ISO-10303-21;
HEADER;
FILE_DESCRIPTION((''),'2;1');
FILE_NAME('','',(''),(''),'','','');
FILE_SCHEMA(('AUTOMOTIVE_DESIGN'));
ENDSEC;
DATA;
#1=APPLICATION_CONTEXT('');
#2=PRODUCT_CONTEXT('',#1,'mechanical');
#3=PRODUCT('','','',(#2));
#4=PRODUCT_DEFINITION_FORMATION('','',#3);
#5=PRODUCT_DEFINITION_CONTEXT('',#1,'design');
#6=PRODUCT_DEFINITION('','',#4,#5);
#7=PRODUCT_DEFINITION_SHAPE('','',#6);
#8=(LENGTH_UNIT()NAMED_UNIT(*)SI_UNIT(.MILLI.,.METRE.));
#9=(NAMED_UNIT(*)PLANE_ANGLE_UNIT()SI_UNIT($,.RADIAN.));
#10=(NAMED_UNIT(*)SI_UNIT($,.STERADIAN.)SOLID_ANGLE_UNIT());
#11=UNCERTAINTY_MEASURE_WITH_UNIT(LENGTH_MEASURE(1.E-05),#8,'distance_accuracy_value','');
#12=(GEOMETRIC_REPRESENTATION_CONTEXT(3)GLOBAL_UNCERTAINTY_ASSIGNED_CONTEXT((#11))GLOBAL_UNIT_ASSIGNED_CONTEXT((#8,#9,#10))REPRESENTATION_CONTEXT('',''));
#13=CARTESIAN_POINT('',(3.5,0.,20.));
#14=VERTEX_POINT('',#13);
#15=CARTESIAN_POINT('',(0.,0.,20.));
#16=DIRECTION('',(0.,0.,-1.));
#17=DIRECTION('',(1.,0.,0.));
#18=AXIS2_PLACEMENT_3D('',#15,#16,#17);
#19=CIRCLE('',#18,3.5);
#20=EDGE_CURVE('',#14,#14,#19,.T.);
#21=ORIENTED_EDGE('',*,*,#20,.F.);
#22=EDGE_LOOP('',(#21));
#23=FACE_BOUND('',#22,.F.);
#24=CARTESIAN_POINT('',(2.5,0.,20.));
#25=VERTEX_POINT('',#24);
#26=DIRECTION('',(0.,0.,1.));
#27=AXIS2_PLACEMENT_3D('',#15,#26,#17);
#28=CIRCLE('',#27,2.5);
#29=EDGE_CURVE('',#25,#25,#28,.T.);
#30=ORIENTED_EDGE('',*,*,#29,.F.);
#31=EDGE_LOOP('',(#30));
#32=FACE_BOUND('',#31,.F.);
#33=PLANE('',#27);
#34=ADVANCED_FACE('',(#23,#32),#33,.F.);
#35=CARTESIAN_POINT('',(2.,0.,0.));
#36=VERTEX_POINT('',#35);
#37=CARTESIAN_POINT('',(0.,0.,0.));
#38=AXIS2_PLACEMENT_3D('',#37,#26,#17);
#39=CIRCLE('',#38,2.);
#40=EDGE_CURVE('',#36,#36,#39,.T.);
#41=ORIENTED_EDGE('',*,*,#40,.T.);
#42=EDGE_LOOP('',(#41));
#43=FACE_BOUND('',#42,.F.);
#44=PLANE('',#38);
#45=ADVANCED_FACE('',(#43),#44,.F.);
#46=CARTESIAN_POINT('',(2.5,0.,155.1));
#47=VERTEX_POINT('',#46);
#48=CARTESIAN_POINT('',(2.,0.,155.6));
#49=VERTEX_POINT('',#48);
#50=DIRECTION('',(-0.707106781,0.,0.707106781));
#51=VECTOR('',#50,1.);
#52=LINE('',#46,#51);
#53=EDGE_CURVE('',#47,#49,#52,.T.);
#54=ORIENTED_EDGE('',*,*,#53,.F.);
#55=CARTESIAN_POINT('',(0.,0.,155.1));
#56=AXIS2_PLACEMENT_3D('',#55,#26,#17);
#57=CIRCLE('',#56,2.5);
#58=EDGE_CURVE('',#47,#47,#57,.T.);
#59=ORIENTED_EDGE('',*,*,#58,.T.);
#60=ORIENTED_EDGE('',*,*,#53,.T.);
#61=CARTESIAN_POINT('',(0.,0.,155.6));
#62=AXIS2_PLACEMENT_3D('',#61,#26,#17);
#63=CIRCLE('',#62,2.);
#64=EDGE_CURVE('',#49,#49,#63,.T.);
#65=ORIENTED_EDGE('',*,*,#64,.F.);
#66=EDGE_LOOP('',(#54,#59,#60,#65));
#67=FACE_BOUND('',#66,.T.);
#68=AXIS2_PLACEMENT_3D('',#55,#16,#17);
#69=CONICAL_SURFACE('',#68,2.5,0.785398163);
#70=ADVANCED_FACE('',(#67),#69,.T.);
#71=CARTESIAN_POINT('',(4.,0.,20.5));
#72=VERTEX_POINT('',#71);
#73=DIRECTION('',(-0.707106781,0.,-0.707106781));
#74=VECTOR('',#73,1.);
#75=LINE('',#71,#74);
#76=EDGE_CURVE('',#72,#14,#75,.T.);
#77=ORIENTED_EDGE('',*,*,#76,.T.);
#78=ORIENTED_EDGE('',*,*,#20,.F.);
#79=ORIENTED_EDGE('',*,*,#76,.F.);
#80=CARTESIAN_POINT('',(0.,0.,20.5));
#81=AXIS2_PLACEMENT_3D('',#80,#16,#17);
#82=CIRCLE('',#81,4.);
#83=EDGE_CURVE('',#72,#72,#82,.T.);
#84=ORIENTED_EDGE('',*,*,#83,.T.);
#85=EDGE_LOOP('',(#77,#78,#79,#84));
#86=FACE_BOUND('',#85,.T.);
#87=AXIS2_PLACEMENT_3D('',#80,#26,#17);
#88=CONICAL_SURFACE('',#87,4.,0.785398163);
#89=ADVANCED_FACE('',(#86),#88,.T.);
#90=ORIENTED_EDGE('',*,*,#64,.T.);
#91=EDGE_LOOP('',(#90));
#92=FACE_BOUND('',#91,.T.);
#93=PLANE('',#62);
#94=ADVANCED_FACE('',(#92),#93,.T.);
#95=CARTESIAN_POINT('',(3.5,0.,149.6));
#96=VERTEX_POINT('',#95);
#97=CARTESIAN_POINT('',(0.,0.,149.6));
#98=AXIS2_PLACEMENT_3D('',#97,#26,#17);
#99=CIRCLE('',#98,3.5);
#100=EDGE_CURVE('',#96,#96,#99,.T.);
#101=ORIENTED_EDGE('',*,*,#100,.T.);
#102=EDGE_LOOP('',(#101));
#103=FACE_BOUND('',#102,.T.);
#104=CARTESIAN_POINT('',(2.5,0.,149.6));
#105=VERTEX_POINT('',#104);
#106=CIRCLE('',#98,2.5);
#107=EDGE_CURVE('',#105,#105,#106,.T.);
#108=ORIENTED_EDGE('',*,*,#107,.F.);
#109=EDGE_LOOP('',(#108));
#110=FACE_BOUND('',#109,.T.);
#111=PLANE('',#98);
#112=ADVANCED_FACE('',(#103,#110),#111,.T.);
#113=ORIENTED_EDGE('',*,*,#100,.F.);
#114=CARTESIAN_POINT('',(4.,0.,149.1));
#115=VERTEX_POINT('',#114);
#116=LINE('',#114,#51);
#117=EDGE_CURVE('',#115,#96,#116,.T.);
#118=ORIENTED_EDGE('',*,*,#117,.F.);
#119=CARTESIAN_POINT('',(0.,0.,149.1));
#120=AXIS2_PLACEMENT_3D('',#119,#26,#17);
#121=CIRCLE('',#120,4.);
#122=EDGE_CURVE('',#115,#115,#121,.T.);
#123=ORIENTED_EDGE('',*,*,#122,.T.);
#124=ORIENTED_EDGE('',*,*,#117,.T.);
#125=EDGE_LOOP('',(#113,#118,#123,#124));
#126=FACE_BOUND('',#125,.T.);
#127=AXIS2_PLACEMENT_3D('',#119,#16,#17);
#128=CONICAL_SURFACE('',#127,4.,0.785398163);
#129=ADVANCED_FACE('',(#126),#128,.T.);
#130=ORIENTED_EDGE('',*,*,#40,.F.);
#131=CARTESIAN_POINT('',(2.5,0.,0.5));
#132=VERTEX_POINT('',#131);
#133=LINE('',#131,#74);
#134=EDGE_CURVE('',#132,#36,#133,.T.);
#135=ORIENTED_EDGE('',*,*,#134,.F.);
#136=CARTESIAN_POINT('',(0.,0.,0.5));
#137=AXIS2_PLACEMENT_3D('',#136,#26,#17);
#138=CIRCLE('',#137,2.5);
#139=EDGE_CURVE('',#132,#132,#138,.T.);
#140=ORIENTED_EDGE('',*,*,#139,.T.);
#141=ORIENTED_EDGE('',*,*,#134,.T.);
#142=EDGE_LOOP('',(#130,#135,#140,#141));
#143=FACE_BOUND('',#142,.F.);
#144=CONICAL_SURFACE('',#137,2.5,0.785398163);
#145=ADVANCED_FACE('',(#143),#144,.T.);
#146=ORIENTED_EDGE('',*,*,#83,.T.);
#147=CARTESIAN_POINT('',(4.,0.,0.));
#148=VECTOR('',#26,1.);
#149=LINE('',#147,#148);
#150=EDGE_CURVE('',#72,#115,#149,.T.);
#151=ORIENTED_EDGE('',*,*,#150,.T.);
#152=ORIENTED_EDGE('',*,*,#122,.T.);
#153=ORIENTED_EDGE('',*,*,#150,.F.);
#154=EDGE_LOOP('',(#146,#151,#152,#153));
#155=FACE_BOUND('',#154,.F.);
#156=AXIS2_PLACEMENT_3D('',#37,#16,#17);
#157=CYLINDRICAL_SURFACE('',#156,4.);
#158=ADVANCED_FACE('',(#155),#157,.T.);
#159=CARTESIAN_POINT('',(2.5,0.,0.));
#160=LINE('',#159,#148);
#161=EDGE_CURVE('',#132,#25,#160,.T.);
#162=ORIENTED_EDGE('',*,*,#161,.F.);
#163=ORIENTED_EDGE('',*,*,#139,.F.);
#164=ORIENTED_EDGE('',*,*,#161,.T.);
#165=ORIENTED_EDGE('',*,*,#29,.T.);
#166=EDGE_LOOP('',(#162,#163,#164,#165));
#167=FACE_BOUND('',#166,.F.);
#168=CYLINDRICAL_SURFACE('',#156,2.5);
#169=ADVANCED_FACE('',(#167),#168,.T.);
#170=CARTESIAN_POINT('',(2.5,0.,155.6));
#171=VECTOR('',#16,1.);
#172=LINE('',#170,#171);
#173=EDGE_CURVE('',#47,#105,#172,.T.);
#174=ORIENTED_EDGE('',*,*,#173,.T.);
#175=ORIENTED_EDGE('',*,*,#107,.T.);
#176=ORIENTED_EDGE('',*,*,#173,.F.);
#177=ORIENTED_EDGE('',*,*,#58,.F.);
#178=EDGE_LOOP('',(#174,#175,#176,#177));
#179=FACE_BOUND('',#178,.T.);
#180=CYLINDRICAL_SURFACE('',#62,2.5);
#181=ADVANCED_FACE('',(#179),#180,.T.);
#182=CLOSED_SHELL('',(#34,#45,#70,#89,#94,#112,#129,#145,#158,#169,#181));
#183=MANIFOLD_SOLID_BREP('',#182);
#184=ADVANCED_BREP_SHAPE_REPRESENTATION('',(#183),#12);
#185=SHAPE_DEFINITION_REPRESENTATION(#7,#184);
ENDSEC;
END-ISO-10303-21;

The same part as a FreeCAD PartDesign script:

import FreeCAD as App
import Part
import Sketcher

V = App.Vector


def edges_at(feature, points):
    """Names of the edges that pass closest to the given points."""
    edges = feature.Shape.Edges
    near = lambda p: min(range(len(edges)), key=lambda i: edges[i].distToShape(Part.Vertex(*p))[0])
    return sorted({f"Edge{near(p) + 1}" for p in points})

doc = App.newDocument("Part")
body = doc.addObject("PartDesign::Body", "Body")

# Sketch on XY plane
sketch1 = doc.addObject("Sketcher::SketchObject", "Sketch")
body.addObject(sketch1)
sketch1.AttachmentSupport = (doc.XY_Plane, [""])
sketch1.MapMode = "FlatFace"
sketch1.addGeometry(Part.Circle(V(0, 0, 0), V(0, 0, 1), 4), False)
sketch1.addConstraint([
    Sketcher.Constraint("Coincident", 0, 3, -1, 1),
    Sketcher.Constraint("Diameter", 0, 8.0),
])
pad1 = doc.addObject("PartDesign::Pad", "Pad")
body.addObject(pad1)
pad1.Profile = sketch1
pad1.Length = 155.6

# Sketch on XY plane
sketch2 = doc.addObject("Sketcher::SketchObject", "Sketch001")
body.addObject(sketch2)
sketch2.AttachmentSupport = (doc.XY_Plane, [""])
sketch2.MapMode = "FlatFace"
sketch2.addGeometry([
    Part.Circle(V(0, 0, 0), V(0, 0, 1), 6.5),
    Part.Circle(V(0, 0, 0), V(0, 0, 1), 2.5),
], False)
sketch2.addConstraint([
    Sketcher.Constraint("Coincident", 0, 3, -1, 1),
    Sketcher.Constraint("Coincident", 1, 3, -1, 1),
    Sketcher.Constraint("Diameter", 0, 13.0),
    Sketcher.Constraint("Diameter", 1, 5.0),
])
pocket1 = doc.addObject("PartDesign::Pocket", "Pocket")
body.addObject(pocket1)
pocket1.Profile = sketch2
pocket1.Length = 20
pocket1.Reversed = True

# Sketch on XY plane
sketch3 = doc.addObject("Sketcher::SketchObject", "Sketch002")
body.addObject(sketch3)
sketch3.AttachmentSupport = (doc.XY_Plane, [""])
sketch3.MapMode = "FlatFace"
sketch3.AttachmentOffset = App.Placement(V(0, 0, 155.6), App.Rotation())
sketch3.addGeometry([
    Part.Circle(V(0, 0, 0), V(0, 0, 1), 4),
    Part.Circle(V(0, 0, 0), V(0, 0, 1), 2.5),
], False)
sketch3.addConstraint([
    Sketcher.Constraint("Coincident", 0, 3, -1, 1),
    Sketcher.Constraint("Coincident", 1, 3, -1, 1),
    Sketcher.Constraint("Diameter", 0, 8.0),
    Sketcher.Constraint("Diameter", 1, 5.0),
])
pocket2 = doc.addObject("PartDesign::Pocket", "Pocket001")
body.addObject(pocket2)
pocket2.Profile = sketch3
pocket2.Length = 6
doc.recompute()

chamfer = doc.addObject("PartDesign::Chamfer", "Chamfer")
body.addObject(chamfer)
chamfer.Base = (pocket2, edges_at(pocket2, [
    (-2.5, 0, 0),
    (-4, 0, 20),
    (-4, 0, 149.6),
    (-2.5, 0, 155.6),
]))
chamfer.Size = 0.5

doc.recompute()
